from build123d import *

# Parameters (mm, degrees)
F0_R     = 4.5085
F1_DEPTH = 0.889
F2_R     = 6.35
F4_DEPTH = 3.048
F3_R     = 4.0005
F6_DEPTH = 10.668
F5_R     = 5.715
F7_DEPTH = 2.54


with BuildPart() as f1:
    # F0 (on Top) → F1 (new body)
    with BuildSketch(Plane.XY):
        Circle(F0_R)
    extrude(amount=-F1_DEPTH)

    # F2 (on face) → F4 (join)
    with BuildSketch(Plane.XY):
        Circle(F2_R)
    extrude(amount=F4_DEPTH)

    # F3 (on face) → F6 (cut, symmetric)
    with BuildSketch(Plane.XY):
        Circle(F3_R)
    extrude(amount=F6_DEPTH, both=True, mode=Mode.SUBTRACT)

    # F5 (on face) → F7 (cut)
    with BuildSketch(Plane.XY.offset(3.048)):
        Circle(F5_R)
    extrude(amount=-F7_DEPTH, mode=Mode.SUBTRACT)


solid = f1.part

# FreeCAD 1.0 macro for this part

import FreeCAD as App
import Part
import Sketcher

V = App.Vector
Q = App.Units.Quantity

doc = App.newDocument("Part")
body = doc.addObject("PartDesign::Body", "Body")

sketch1 = body.newObject("Sketcher::SketchObject", "Sketch")
sketch1.AttachmentSupport = (doc.getObject("XY_Plane"), [""])
sketch1.MapMode = "FlatFace"
sketch1.addGeometry(Part.Circle(V(0, 0, 0), V(0, 0, 1), 4.5085), False)
sketch1.addConstraint([
    Sketcher.Constraint("Coincident", 0, 3, -1, 1),
    Sketcher.Constraint("Diameter", 0, Q("0.355 in")),
])
pad1 = body.newObject("PartDesign::Pad", "Pad")
pad1.Profile = sketch1
pad1.Length = Q("0.035 in")
pad1.Reversed = True

sketch2 = body.newObject("Sketcher::SketchObject", "Sketch001")
sketch2.AttachmentSupport = (doc.getObject("XY_Plane"), [""])
sketch2.MapMode = "FlatFace"
sketch2.addGeometry(Part.Circle(V(0, 0, 0), V(0, 0, 1), 6.35), False)
sketch2.addConstraint([
    Sketcher.Constraint("Coincident", 0, 3, -1, 1),
    Sketcher.Constraint("Diameter", 0, Q("0.5 in")),
])
pad2 = body.newObject("PartDesign::Pad", "Pad001")
pad2.Profile = sketch2
pad2.Length = Q("0.12 in")

sketch3 = body.newObject("Sketcher::SketchObject", "Sketch002")
sketch3.AttachmentSupport = (doc.getObject("XY_Plane"), [""])
sketch3.MapMode = "FlatFace"
sketch3.addGeometry(Part.Circle(V(0, 0, 0), V(0, 0, 1), 4.0005), False)
sketch3.addConstraint([
    Sketcher.Constraint("Coincident", 0, 3, -1, 1),
    Sketcher.Constraint("Diameter", 0, Q("0.315 in")),
])
pocket1 = body.newObject("PartDesign::Pocket", "Pocket")
pocket1.Profile = sketch3
pocket1.Length = Q("0.84 in")
pocket1.Midplane = True

sketch4 = body.newObject("Sketcher::SketchObject", "Sketch003")
sketch4.AttachmentSupport = (doc.getObject("XY_Plane"), [""])
sketch4.MapMode = "FlatFace"
sketch4.AttachmentOffset = App.Placement(V(0, 0, 0.12 * 25.4), App.Rotation())
sketch4.addGeometry(Part.Circle(V(0, 0, 0), V(0, 0, 1), 5.715), False)
sketch4.addConstraint([
    Sketcher.Constraint("Coincident", 0, 3, -1, 1),
    Sketcher.Constraint("Diameter", 0, Q("0.45 in")),
])
pocket2 = body.newObject("PartDesign::Pocket", "Pocket001")
pocket2.Profile = sketch4
pocket2.Length = Q("0.1 in")

doc.recompute()
